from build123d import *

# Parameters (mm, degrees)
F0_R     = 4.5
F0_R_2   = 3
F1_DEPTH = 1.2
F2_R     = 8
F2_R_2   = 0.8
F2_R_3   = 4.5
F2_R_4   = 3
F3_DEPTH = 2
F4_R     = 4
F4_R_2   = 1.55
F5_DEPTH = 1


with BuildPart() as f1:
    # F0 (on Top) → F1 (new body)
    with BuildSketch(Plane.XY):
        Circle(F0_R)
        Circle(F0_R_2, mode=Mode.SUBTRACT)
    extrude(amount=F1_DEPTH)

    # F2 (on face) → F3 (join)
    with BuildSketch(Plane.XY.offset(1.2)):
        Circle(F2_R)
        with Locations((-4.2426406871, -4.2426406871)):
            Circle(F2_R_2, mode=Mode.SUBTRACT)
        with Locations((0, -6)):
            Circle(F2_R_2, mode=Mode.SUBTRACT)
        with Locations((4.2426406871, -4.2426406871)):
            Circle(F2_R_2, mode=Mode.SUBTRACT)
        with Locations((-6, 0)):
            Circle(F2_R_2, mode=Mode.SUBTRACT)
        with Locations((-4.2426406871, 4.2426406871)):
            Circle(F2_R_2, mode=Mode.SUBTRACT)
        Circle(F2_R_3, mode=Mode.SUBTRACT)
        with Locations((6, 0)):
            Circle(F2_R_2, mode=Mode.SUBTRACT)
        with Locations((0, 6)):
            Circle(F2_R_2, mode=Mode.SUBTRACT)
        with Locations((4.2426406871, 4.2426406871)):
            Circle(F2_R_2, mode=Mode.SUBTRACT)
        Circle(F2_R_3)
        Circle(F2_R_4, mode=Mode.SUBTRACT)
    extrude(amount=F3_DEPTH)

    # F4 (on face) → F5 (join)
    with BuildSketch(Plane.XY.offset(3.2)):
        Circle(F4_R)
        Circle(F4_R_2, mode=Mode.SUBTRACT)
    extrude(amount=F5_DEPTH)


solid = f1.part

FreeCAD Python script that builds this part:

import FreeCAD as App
import Part
import Sketcher
from FreeCAD import Vector

doc = App.newDocument("Part")
body = doc.addObject("PartDesign::Body", "Body")

# Sketch on XY plane
sketch1 = doc.addObject("Sketcher::SketchObject", "Sketch")
body.addObject(sketch1)
sketch1.AttachmentSupport = (doc.XY_Plane, [""])
sketch1.MapMode = "FlatFace"
sketch1.addGeometry(Part.Circle(Vector(0, 0, 0), Vector(0, 0, 1), 4.5), False)
sketch1.addGeometry(Part.Circle(Vector(0, 0, 0), Vector(0, 0, 1), 3), False)
sketch1.addConstraint(Sketcher.Constraint("Coincident", 0, 3, -1, 1))
sketch1.addConstraint(Sketcher.Constraint("Coincident", 1, 3, -1, 1))
sketch1.addConstraint(Sketcher.Constraint("Diameter", 0, 9.0))
sketch1.addConstraint(Sketcher.Constraint("Diameter", 1, 6.0))
pad1 = doc.addObject("PartDesign::Pad", "Pad")
body.addObject(pad1)
pad1.Profile = sketch1
pad1.Length = 1.2

# Sketch on XY plane
sketch2 = doc.addObject("Sketcher::SketchObject", "Sketch001")
body.addObject(sketch2)
sketch2.AttachmentSupport = (doc.XY_Plane, [""])
sketch2.MapMode = "FlatFace"
sketch2.AttachmentOffset = App.Placement(Vector(0, 0, 1.2), App.Rotation())
sketch2.addGeometry(Part.Circle(Vector(0, 0, 0), Vector(0, 0, 1), 8), False)
sketch2.addGeometry(Part.Circle(Vector(-4.2, -4.2, 0), Vector(0, 0, 1), 0.8), False)
sketch2.addGeometry(Part.Circle(Vector(0, -6, 0), Vector(0, 0, 1), 0.8), False)
sketch2.addGeometry(Part.Circle(Vector(4.2, -4.2, 0), Vector(0, 0, 1), 0.8), False)
sketch2.addGeometry(Part.Circle(Vector(-6, 0, 0), Vector(0, 0, 1), 0.8), False)
sketch2.addGeometry(Part.Circle(Vector(0, 0, 0), Vector(0, 0, 1), 3), False)
sketch2.addGeometry(Part.Circle(Vector(-4.2, 4.2, 0), Vector(0, 0, 1), 0.8), False)
sketch2.addGeometry(Part.Circle(Vector(6, 0, 0), Vector(0, 0, 1), 0.8), False)
sketch2.addGeometry(Part.Circle(Vector(0, 6, 0), Vector(0, 0, 1), 0.8), False)
sketch2.addGeometry(Part.Circle(Vector(4.2, 4.2, 0), Vector(0, 0, 1), 0.8), False)
sketch2.addConstraint(Sketcher.Constraint("Coincident", 0, 3, -1, 1))
sketch2.addConstraint(Sketcher.Constraint("Coincident", 5, 3, -1, 1))
sketch2.addConstraint(Sketcher.Constraint("Equal", 1, 2))
sketch2.addConstraint(Sketcher.Constraint("Equal", 2, 3))
sketch2.addConstraint(Sketcher.Constraint("Equal", 3, 4))
sketch2.addConstraint(Sketcher.Constraint("Equal", 4, 6))
sketch2.addConstraint(Sketcher.Constraint("Equal", 6, 7))
sketch2.addConstraint(Sketcher.Constraint("Equal", 7, 8))
sketch2.addConstraint(Sketcher.Constraint("Equal", 8, 9))
sketch2.addConstraint(Sketcher.Constraint("Symmetric", 3, 3, 6, 3, -1, 1))
sketch2.addConstraint(Sketcher.Constraint("Symmetric", 4, 3, 7, 3, -1, 1))
sketch2.addConstraint(Sketcher.Constraint("Symmetric", 2, 3, 8, 3, -1, 1))
sketch2.addConstraint(Sketcher.Constraint("Symmetric", 1, 3, 9, 3, -1, 1))
sketch2.addConstraint(Sketcher.Constraint("Symmetric", 1, 3, 3, 3, -2))
sketch2.addConstraint(Sketcher.Constraint("PointOnObject", 2, 3, -2))
sketch2.addConstraint(Sketcher.Constraint("PointOnObject", 4, 3, -1))
sketch2.addConstraint(Sketcher.Constraint("Diameter", 0, 16.0))
sketch2.addConstraint(Sketcher.Constraint("Diameter", 5, 6.0))
sketch2.addConstraint(Sketcher.Constraint("Diameter", 1, 1.6))
sketch2.addConstraint(Sketcher.Constraint("DistanceY", 2, 3, -1, 1, 6.0))
sketch2.addConstraint(Sketcher.Constraint("DistanceX", 4, 3, -1, 1, 6.0))
sketch2.addConstraint(Sketcher.Constraint("DistanceX", 1, 3, -1, 1, 4.242641))
sketch2.addConstraint(Sketcher.Constraint("DistanceY", 1, 3, -1, 1, 4.242641))
pad2 = doc.addObject("PartDesign::Pad", "Pad001")
body.addObject(pad2)
pad2.Profile = sketch2
pad2.Length = 2

# Sketch on XY plane
sketch3 = doc.addObject("Sketcher::SketchObject", "Sketch002")
body.addObject(sketch3)
sketch3.AttachmentSupport = (doc.XY_Plane, [""])
sketch3.MapMode = "FlatFace"
sketch3.AttachmentOffset = App.Placement(Vector(0, 0, 3.2), App.Rotation())
sketch3.addGeometry(Part.Circle(Vector(0, 0, 0), Vector(0, 0, 1), 4), False)
sketch3.addGeometry(Part.Circle(Vector(0, 0, 0), Vector(0, 0, 1), 1.6), False)
sketch3.addConstraint(Sketcher.Constraint("Coincident", 0, 3, -1, 1))
sketch3.addConstraint(Sketcher.Constraint("Coincident", 1, 3, -1, 1))
sketch3.addConstraint(Sketcher.Constraint("Diameter", 0, 8.0))
sketch3.addConstraint(Sketcher.Constraint("Diameter", 1, 3.1))
pad3 = doc.addObject("PartDesign::Pad", "Pad002")
body.addObject(pad3)
pad3.Profile = sketch3
pad3.Length = 1

doc.recompute()
